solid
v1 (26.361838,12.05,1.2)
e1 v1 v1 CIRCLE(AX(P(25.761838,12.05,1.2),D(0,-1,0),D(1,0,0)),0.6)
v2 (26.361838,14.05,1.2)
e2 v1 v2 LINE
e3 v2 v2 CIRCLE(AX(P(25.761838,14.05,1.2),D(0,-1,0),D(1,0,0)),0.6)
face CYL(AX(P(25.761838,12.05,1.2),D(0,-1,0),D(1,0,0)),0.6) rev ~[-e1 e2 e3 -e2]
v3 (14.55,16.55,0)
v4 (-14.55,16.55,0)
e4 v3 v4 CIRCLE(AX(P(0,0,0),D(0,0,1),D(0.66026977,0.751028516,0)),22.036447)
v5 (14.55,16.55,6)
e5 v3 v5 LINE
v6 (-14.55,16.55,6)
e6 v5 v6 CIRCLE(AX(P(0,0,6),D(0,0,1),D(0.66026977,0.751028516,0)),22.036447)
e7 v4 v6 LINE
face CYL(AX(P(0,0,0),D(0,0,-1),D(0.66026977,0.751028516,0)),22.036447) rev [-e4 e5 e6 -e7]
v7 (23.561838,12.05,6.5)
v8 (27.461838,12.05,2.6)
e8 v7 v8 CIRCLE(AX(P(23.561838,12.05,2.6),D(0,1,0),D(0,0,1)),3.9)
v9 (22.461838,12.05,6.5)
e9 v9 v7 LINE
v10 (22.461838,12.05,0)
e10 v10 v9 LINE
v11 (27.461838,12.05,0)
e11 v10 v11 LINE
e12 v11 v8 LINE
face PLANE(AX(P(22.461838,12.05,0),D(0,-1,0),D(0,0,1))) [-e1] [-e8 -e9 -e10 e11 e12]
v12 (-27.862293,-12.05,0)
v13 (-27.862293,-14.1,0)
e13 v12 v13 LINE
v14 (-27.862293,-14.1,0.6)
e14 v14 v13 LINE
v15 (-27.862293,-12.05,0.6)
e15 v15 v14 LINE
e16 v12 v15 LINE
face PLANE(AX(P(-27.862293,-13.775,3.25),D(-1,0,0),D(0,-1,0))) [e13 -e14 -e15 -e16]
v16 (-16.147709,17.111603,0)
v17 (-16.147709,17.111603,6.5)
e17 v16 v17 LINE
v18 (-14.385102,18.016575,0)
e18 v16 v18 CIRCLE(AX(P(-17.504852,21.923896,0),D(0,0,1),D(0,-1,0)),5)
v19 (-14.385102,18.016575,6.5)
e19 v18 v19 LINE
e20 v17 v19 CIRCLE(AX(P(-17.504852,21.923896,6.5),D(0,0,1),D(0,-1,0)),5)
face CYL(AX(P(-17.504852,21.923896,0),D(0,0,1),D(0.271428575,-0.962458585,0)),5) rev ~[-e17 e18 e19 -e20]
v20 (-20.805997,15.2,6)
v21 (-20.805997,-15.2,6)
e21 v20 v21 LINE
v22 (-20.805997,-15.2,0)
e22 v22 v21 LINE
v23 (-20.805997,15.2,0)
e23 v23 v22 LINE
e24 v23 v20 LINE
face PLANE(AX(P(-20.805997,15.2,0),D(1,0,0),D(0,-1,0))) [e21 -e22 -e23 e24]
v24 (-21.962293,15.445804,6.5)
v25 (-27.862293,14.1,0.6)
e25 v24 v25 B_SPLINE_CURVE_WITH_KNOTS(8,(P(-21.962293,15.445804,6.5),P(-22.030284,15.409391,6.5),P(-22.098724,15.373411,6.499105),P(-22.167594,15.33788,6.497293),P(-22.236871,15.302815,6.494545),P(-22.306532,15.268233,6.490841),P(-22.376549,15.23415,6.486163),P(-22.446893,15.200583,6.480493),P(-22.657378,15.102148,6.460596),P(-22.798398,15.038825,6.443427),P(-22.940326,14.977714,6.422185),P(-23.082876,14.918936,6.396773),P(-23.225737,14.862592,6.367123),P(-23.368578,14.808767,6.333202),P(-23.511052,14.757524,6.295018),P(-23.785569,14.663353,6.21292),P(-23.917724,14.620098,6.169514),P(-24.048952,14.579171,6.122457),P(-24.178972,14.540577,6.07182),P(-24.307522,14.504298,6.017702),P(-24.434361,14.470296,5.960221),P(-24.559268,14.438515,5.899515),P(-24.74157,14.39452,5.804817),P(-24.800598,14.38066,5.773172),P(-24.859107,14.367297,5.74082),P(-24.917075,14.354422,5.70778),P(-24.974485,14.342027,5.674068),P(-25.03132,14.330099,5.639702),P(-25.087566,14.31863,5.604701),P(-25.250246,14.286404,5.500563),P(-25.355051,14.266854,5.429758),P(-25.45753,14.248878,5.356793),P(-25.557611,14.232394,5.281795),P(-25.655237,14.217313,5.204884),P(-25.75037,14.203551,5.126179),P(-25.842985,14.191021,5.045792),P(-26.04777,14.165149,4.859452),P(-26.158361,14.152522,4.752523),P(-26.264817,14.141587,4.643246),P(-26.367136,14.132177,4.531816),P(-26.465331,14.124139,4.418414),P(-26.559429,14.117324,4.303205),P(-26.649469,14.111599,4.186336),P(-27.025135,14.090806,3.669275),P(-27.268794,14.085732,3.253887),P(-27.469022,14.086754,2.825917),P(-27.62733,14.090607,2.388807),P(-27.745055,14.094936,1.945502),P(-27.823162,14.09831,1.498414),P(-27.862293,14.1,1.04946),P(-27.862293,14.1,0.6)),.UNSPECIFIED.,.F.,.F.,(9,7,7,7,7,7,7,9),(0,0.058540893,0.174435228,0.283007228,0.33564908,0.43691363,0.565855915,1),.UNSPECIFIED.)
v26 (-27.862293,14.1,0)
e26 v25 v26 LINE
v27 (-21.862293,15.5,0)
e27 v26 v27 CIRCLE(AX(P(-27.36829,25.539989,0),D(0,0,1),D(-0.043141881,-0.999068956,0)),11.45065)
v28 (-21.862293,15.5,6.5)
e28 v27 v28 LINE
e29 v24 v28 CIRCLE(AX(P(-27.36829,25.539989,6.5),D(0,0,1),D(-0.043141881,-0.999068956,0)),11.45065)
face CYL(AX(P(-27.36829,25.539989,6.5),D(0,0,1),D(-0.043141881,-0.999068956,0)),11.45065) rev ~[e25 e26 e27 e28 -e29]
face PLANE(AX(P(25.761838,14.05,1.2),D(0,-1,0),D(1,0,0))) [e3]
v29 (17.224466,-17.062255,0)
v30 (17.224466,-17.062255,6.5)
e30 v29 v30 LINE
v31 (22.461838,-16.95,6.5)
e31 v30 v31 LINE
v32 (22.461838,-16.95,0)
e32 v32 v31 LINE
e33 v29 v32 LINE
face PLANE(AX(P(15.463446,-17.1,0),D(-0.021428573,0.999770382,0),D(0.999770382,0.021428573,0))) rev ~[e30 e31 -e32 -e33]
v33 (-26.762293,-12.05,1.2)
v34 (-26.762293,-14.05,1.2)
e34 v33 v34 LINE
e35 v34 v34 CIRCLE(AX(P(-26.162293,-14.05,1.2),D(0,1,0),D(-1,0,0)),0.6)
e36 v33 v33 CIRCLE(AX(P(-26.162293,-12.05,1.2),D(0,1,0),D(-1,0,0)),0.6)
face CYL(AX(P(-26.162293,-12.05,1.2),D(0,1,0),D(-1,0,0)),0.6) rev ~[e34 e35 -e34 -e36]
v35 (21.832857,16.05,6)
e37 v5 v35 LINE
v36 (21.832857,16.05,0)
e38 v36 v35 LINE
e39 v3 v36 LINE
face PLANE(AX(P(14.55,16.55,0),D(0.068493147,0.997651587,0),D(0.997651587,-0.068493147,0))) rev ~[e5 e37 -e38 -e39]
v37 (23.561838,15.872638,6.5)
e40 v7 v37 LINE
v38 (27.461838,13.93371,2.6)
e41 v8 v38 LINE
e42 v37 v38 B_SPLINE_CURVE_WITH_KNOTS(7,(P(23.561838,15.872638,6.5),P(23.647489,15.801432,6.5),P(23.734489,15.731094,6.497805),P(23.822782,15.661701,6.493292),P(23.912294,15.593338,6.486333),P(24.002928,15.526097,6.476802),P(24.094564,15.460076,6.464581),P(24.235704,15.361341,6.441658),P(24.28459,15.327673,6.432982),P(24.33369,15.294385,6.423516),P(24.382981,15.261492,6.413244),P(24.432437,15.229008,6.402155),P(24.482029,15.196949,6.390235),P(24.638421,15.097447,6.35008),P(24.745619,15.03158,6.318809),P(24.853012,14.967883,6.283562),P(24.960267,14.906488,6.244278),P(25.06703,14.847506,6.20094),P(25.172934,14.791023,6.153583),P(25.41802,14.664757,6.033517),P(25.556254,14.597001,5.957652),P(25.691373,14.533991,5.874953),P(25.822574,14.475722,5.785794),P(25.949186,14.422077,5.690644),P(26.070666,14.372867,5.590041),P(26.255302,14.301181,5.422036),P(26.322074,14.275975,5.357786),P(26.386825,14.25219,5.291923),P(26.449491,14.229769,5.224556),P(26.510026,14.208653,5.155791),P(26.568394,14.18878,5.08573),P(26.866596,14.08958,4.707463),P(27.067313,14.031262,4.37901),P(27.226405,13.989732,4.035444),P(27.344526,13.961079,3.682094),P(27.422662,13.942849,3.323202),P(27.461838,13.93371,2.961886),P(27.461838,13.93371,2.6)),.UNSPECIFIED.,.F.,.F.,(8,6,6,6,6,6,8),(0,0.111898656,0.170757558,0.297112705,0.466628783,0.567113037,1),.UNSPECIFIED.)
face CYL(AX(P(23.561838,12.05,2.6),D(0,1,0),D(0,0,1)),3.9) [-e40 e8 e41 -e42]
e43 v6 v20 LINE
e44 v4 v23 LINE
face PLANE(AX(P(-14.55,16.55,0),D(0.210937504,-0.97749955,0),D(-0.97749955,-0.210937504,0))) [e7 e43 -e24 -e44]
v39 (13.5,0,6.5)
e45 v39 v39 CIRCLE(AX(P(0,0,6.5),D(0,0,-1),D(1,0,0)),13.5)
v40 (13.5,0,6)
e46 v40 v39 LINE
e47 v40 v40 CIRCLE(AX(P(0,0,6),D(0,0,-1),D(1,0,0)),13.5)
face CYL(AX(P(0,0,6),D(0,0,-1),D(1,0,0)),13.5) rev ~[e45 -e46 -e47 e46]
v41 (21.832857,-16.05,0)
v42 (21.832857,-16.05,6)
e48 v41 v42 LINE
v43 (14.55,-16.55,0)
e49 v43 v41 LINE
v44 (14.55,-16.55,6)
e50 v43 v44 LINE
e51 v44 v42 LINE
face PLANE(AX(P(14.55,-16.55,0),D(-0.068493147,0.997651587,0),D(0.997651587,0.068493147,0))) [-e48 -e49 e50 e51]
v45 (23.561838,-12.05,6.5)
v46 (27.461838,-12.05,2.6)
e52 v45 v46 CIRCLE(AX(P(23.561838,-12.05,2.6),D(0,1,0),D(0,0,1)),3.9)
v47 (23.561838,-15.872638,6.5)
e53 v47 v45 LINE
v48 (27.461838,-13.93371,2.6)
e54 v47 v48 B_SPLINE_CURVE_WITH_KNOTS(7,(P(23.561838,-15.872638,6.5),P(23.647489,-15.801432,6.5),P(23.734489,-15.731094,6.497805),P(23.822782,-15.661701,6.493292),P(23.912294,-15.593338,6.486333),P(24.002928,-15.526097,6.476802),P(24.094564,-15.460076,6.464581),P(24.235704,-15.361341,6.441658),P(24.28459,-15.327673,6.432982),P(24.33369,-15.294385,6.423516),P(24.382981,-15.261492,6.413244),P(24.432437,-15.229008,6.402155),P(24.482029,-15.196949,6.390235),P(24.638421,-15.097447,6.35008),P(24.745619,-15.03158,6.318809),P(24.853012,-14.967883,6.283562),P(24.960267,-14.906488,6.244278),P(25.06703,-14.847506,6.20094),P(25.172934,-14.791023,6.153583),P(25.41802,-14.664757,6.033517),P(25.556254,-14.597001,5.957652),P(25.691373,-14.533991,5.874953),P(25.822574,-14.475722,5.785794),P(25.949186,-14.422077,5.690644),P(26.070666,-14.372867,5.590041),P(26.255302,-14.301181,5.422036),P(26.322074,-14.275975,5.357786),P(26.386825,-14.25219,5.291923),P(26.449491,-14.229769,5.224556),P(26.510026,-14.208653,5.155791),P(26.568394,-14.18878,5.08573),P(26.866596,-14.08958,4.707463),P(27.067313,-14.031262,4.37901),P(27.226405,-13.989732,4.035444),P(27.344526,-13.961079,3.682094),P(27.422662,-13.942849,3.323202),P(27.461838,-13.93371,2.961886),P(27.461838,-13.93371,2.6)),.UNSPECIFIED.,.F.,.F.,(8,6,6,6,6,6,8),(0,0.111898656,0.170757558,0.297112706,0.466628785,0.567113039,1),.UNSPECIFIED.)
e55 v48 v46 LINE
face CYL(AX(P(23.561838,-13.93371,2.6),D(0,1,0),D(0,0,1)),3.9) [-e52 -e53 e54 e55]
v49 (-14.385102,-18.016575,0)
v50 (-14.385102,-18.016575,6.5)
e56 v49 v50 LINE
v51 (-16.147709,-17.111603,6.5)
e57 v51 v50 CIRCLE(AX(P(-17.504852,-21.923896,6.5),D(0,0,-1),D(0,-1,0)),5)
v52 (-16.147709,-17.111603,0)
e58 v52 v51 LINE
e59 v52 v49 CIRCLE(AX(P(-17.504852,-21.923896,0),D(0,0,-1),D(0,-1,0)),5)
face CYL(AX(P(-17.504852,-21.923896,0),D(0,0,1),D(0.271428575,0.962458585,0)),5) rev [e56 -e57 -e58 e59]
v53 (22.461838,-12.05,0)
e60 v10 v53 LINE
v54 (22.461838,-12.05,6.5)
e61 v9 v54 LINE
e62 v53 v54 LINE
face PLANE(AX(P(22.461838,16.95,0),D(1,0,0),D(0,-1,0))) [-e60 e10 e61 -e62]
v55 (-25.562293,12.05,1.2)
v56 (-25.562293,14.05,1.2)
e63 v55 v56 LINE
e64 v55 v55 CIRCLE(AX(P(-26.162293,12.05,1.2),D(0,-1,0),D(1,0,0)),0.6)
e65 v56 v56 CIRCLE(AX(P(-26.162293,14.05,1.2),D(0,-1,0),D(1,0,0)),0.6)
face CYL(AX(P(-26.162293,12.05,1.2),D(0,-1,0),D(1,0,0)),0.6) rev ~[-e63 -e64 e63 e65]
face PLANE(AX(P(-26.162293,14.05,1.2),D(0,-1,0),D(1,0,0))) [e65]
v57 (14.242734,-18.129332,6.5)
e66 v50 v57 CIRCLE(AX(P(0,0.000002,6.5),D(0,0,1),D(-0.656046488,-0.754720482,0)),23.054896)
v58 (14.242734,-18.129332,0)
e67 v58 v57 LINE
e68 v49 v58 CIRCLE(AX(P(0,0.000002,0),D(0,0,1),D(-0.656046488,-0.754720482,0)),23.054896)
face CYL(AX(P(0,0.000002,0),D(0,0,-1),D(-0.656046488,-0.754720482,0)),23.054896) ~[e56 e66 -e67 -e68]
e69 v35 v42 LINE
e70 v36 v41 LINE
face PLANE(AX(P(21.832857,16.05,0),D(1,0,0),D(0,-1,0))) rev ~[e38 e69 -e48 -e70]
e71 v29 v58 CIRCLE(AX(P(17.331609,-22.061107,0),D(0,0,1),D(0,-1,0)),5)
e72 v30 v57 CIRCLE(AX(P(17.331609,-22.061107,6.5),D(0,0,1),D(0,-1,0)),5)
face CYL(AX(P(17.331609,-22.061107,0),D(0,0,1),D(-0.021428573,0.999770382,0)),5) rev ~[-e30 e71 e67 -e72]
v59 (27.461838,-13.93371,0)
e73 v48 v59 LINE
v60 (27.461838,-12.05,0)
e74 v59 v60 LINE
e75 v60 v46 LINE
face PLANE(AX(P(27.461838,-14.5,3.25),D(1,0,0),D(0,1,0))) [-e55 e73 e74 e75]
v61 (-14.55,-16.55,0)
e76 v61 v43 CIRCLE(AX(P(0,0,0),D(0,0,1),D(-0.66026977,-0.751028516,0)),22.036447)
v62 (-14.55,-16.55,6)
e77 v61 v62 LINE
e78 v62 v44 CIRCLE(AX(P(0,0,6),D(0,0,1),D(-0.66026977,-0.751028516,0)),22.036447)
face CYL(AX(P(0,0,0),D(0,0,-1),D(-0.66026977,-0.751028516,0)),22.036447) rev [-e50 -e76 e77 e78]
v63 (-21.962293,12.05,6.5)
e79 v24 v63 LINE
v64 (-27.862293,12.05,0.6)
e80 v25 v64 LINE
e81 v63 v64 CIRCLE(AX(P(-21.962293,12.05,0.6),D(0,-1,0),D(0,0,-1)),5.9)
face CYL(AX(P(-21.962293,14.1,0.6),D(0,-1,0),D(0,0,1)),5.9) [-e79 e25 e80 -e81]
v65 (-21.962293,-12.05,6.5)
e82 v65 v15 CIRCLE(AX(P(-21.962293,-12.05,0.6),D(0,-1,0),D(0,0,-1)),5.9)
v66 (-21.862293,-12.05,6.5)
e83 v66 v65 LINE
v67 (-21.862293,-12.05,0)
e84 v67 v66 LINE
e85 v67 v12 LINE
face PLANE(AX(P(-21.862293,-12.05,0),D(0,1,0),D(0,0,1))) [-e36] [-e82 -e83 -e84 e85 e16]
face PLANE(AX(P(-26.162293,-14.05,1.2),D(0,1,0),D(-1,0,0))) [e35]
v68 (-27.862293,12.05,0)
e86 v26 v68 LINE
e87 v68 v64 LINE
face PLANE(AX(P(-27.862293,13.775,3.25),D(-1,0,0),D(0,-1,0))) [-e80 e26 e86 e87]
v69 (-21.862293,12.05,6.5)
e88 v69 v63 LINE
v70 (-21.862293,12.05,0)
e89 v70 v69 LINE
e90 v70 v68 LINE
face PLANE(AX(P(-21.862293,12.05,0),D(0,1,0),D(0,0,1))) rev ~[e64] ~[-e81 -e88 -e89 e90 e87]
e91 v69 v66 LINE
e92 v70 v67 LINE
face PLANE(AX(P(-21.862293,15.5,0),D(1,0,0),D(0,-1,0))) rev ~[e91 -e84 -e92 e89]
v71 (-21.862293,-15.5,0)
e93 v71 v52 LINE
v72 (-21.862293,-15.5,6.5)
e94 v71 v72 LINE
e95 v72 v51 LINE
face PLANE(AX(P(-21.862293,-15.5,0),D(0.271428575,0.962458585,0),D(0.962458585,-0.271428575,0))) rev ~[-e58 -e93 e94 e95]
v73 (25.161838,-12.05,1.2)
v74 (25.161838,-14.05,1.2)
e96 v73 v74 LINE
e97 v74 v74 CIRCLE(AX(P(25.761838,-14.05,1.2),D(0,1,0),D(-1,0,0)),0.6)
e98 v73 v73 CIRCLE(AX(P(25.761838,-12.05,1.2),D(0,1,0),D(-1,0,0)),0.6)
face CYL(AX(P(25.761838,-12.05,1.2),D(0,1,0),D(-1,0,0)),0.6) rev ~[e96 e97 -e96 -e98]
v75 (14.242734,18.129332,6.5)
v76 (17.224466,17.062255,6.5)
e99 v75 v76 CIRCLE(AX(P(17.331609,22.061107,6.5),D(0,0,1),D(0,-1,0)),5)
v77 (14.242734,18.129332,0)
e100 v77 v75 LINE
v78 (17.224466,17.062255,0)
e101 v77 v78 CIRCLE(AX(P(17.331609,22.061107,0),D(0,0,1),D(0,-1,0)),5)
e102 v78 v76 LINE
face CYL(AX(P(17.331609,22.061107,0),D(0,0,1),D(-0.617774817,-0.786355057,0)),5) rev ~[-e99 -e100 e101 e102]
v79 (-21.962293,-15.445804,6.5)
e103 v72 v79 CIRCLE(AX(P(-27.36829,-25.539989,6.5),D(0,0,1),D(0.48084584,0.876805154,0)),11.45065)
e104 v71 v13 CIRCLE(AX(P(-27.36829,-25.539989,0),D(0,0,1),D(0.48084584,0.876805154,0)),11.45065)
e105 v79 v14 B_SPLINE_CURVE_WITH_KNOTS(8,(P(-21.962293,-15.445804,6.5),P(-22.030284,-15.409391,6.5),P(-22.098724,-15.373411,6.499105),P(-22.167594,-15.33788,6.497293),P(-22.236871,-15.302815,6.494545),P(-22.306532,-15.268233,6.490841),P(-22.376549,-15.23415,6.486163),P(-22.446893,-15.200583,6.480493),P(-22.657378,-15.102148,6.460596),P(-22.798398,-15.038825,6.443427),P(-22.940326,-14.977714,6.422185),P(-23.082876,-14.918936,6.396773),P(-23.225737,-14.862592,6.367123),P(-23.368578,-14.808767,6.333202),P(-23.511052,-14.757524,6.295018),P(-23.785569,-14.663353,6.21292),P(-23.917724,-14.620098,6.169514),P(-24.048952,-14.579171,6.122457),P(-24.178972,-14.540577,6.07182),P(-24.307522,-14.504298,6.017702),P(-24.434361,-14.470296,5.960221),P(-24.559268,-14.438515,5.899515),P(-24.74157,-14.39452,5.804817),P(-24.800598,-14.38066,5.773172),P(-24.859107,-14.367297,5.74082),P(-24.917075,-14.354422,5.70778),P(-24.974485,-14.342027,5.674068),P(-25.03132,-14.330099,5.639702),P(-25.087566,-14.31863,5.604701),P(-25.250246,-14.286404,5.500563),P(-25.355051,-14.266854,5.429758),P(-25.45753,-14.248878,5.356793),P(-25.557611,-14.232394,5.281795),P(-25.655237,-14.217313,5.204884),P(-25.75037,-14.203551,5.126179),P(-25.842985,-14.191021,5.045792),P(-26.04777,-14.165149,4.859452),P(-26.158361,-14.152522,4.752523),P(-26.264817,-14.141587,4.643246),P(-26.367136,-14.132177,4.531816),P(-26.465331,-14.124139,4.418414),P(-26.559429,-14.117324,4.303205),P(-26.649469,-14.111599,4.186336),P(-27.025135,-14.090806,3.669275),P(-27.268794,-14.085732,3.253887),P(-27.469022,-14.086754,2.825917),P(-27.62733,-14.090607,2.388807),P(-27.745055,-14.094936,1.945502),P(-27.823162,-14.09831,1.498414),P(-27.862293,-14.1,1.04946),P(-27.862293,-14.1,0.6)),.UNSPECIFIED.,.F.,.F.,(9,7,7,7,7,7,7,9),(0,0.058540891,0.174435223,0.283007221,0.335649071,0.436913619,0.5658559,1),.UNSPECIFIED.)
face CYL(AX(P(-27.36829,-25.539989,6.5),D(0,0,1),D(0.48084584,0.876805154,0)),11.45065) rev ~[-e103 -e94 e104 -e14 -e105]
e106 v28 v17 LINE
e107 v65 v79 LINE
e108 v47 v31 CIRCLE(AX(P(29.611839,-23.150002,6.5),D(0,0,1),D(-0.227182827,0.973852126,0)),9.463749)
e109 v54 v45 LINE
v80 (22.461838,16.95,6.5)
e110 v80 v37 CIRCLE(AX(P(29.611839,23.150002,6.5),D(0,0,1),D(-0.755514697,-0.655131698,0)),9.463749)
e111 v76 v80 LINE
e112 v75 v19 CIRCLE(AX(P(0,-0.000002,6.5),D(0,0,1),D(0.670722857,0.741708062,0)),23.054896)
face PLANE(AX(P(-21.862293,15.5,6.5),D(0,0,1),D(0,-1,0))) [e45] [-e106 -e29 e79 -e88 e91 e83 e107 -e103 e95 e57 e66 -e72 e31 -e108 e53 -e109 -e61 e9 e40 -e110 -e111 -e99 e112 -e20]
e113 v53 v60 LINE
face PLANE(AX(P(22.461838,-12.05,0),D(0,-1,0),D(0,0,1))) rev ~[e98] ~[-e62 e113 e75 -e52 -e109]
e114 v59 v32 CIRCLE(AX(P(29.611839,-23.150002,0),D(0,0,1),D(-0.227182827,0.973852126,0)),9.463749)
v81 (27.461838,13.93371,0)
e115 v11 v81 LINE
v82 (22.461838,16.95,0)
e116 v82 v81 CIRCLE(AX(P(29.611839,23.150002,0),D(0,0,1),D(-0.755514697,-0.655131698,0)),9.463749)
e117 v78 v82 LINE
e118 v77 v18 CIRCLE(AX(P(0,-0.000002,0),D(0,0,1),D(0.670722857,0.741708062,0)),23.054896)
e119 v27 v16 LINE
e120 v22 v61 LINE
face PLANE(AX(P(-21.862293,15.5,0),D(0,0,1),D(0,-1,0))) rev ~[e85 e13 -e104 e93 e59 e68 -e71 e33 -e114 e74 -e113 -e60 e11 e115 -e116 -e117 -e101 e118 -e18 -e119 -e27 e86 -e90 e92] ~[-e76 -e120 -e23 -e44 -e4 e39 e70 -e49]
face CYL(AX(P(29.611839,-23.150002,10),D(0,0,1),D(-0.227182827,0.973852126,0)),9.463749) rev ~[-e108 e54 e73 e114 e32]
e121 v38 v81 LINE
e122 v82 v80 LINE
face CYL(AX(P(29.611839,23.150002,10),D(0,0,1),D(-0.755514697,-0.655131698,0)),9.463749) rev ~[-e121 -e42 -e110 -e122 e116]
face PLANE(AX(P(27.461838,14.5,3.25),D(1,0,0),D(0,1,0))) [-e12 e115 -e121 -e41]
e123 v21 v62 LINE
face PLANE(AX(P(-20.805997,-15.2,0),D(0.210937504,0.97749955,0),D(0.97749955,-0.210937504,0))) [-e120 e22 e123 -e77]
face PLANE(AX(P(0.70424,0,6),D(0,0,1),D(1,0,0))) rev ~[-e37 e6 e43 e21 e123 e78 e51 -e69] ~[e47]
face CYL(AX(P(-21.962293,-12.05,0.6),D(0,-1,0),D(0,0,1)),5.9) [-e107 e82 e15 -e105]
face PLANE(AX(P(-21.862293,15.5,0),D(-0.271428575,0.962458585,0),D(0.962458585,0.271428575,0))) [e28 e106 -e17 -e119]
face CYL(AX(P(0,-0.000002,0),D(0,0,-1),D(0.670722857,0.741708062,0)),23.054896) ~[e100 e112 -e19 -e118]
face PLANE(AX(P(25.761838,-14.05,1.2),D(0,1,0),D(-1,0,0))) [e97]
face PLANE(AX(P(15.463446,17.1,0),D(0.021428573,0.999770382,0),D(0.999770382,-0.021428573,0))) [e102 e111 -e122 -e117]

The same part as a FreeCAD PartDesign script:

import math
import FreeCAD as App
import Part
import Sketcher
from FreeCAD import Vector
Q = App.Units.Quantity


def edges_at(feature, points):
    """Names of the edges that pass closest to the given points."""
    edges = feature.Shape.Edges
    near = lambda p: min(range(len(edges)), key=lambda i: edges[i].distToShape(Part.Vertex(*p))[0])
    return sorted({f"Edge{near(p) + 1}" for p in points})

doc = App.newDocument("Part")
body = doc.addObject("PartDesign::Body", "Body")

sketch1 = body.newObject("Sketcher::SketchObject", "Sketch")
sketch1.AttachmentSupport = (doc.getObject("XY_Plane"), [""])
sketch1.MapMode = "FlatFace"
sketch1.addGeometry(Part.LineSegment(Vector(-21.862293, 15.5, 0), Vector(-21.862293, -15.5, 0)), False)
sketch1.addGeometry(Part.LineSegment(Vector(-21.862293, -15.5, 0), Vector(-15.125083, -17.4, 0)), False)
sketch1.addGeometry(Part.ArcOfCircle(Part.Circle(Vector(0, 0.000002, 0), Vector(0, 0, 1), 23.054896), math.radians(-130.999048), math.radians(-47.87712)), False)
sketch1.addGeometry(Part.LineSegment(Vector(15.463446, -17.1, 0), Vector(22.461838, -16.95, 0)), False)
sketch1.addGeometry(Part.LineSegment(Vector(22.461838, -16.95, 0), Vector(22.461838, 16.95, 0)), False)
sketch1.addGeometry(Part.LineSegment(Vector(22.461838, 16.95, 0), Vector(15.463446, 17.1, 0)), False)
sketch1.addGeometry(Part.ArcOfCircle(Part.Circle(Vector(0, -0.000002, 0), Vector(0, 0, 1), 23.054896), math.radians(47.87712), math.radians(130.999048)), False)
sketch1.addGeometry(Part.LineSegment(Vector(-15.125083, 17.4, 0), Vector(-21.862293, 15.5, 0)), False)
sketch1.addConstraint(Sketcher.Constraint("Coincident", 0, 2, 1, 1))
sketch1.addConstraint(Sketcher.Constraint("Coincident", 1, 2, 2, 1))
sketch1.addConstraint(Sketcher.Constraint("Coincident", 2, 2, 3, 1))
sketch1.addConstraint(Sketcher.Constraint("Coincident", 3, 2, 4, 1))
sketch1.addConstraint(Sketcher.Constraint("Coincident", 4, 2, 5, 1))
sketch1.addConstraint(Sketcher.Constraint("Coincident", 5, 2, 6, 1))
sketch1.addConstraint(Sketcher.Constraint("Coincident", 6, 2, 7, 1))
sketch1.addConstraint(Sketcher.Constraint("Coincident", 7, 2, 0, 1))
sketch1.addConstraint(Sketcher.Constraint("Vertical", 0))
sketch1.addConstraint(Sketcher.Constraint("Vertical", 4))
sketch1.addConstraint(Sketcher.Constraint("Coincident", 2, 3, -1, 1))
sketch1.addConstraint(Sketcher.Constraint("Coincident", 6, 3, -1, 1))
sketch1.addConstraint(Sketcher.Constraint("Equal", 2, 6))
sketch1.addConstraint(Sketcher.Constraint("Vertical", 2, 2, 5, 2))
sketch1.addConstraint(Sketcher.Constraint("Vertical", 1, 2, 6, 2))
sketch1.addConstraint(Sketcher.Constraint("Equal", 1, 3))
sketch1.addConstraint(Sketcher.Constraint("Equal", 3, 5))
sketch1.addConstraint(Sketcher.Constraint("Equal", 5, 7))
sketch1.addConstraint(Sketcher.Constraint("DistanceY", 0, 2, 0, 1, Q("31 mm")))
sketch1.addConstraint(Sketcher.Constraint("Distance", 1, Q("7 mm")))
sketch1.addConstraint(Sketcher.Constraint("DistanceY", 4, 1, 4, 2, Q("33.9 mm")))
sketch1.addConstraint(Sketcher.Constraint("DistanceY", 1, 2, -1, 1, Q("17.4 mm")))
sketch1.addConstraint(Sketcher.Constraint("DistanceY", 2, 2, -1, 1, Q("17.1 mm")))
sketch1.addConstraint(Sketcher.Constraint("Radius", 2, Q("23.054896 mm")))
pad1 = body.newObject("PartDesign::Pad", "Pad")
pad1.Profile = sketch1
pad1.Length = 6.5

sketch2 = body.newObject("Sketcher::SketchObject", "Sketch001")
sketch2.AttachmentSupport = (doc.getObject("XY_Plane"), [""])
sketch2.MapMode = "FlatFace"
sketch2.addGeometry(Part.LineSegment(Vector(-14.55, 16.55, 0), Vector(-20.805997, 15.2, 0)), False)
sketch2.addGeometry(Part.LineSegment(Vector(-20.805997, 15.2, 0), Vector(-20.805997, -15.2, 0)), False)
sketch2.addGeometry(Part.LineSegment(Vector(-20.805997, -15.2, 0), Vector(-14.55, -16.55, 0)), False)
sketch2.addGeometry(Part.ArcOfCircle(Part.Circle(Vector(0, 0, 0), Vector(0, 0, 1), 22.036447), math.radians(-131.32045), math.radians(-48.67955)), False)
sketch2.addGeometry(Part.LineSegment(Vector(14.55, -16.55, 0), Vector(21.832857, -16.05, 0)), False)
sketch2.addGeometry(Part.LineSegment(Vector(21.832857, -16.05, 0), Vector(21.832857, 16.05, 0)), False)
sketch2.addGeometry(Part.LineSegment(Vector(21.832857, 16.05, 0), Vector(14.55, 16.55, 0)), False)
sketch2.addGeometry(Part.ArcOfCircle(Part.Circle(Vector(0, 0, 0), Vector(0, 0, 1), 22.036447), math.radians(48.67955), math.radians(131.32045)), False)
sketch2.addConstraint(Sketcher.Constraint("Coincident", 0, 2, 1, 1))
sketch2.addConstraint(Sketcher.Constraint("Coincident", 1, 2, 2, 1))
sketch2.addConstraint(Sketcher.Constraint("Coincident", 2, 2, 3, 1))
sketch2.addConstraint(Sketcher.Constraint("Coincident", 3, 2, 4, 1))
sketch2.addConstraint(Sketcher.Constraint("Coincident", 4, 2, 5, 1))
sketch2.addConstraint(Sketcher.Constraint("Coincident", 5, 2, 6, 1))
sketch2.addConstraint(Sketcher.Constraint("Coincident", 6, 2, 7, 1))
sketch2.addConstraint(Sketcher.Constraint("Coincident", 7, 2, 0, 1))
sketch2.addConstraint(Sketcher.Constraint("Vertical", 1))
sketch2.addConstraint(Sketcher.Constraint("Vertical", 5))
sketch2.addConstraint(Sketcher.Constraint("Coincident", 3, 3, -1, 1))
sketch2.addConstraint(Sketcher.Constraint("Coincident", 7, 3, -1, 1))
sketch2.addConstraint(Sketcher.Constraint("Equal", 3, 7))
sketch2.addConstraint(Sketcher.Constraint("Horizontal", 2, 2, 3, 2))
sketch2.addConstraint(Sketcher.Constraint("Horizontal", 6, 2, 7, 2))
sketch2.addConstraint(Sketcher.Constraint("Vertical", 3, 2, 6, 2))
sketch2.addConstraint(Sketcher.Constraint("Equal", 0, 2))
sketch2.addConstraint(Sketcher.Constraint("Equal", 4, 6))
sketch2.addConstraint(Sketcher.Constraint("DistanceY", 1, 2, 1, 1, Q("30.4 mm")))
sketch2.addConstraint(Sketcher.Constraint("DistanceY", 5, 1, 5, 2, Q("32.1 mm")))
sketch2.addConstraint(Sketcher.Constraint("Distance", 0, Q("6.4 mm")))
sketch2.addConstraint(Sketcher.Constraint("Distance", 4, Q("7.3 mm")))
sketch2.addConstraint(Sketcher.Constraint("DistanceX", 2, 2, 3, 2, Q("29.1 mm")))
sketch2.addConstraint(Sketcher.Constraint("DistanceY", 3, 2, 4, 2, Q("0.5 mm")))
pocket1 = body.newObject("PartDesign::Pocket", "Pocket")
pocket1.Profile = sketch2
pocket1.Length = 6
pocket1.Reversed = True

sketch3 = body.newObject("Sketcher::SketchObject", "Sketch002")
sketch3.AttachmentSupport = (doc.getObject("XY_Plane"), [""])
sketch3.MapMode = "FlatFace"
sketch3.AttachmentOffset = App.Placement(Vector(0, 0, 6), App.Rotation())
sketch3.addGeometry(Part.Circle(Vector(0, 0, 0), Vector(0, 0, 1), 13.5), False)
sketch3.addConstraint(Sketcher.Constraint("Coincident", 0, 3, -1, 1))
sketch3.addConstraint(Sketcher.Constraint("Diameter", 0, Q("27 mm")))
pocket2 = body.newObject("PartDesign::Pocket", "Pocket001")
pocket2.Profile = sketch3
pocket2.Length = 1
pocket2.Reversed = True

sketch4 = body.newObject("Sketcher::SketchObject", "Sketch003")
sketch4.AttachmentSupport = (doc.getObject("YZ_Plane"), [""])
sketch4.MapMode = "FlatFace"
sketch4.AttachmentOffset = App.Placement(Vector(0, 0, 22.461838), App.Rotation())
sketch4.addGeometry(Part.LineSegment(Vector(-16.95, 6.5, 0), Vector(-16.95, 0, 0)), False)
sketch4.addGeometry(Part.LineSegment(Vector(-16.95, 0, 0), Vector(-12.05, 0, 0)), False)
sketch4.addGeometry(Part.LineSegment(Vector(-12.05, 0, 0), Vector(-12.05, 6.5, 0)), False)
sketch4.addGeometry(Part.LineSegment(Vector(-12.05, 6.5, 0), Vector(-16.95, 6.5, 0)), False)
sketch4.addGeometry(Part.LineSegment(Vector(12.05, 6.5, 0), Vector(12.05, 0, 0)), False)
sketch4.addGeometry(Part.LineSegment(Vector(12.05, 0, 0), Vector(16.95, 0, 0)), False)
sketch4.addGeometry(Part.LineSegment(Vector(16.95, 0, 0), Vector(16.95, 6.5, 0)), False)
sketch4.addGeometry(Part.LineSegment(Vector(16.95, 6.5, 0), Vector(12.05, 6.5, 0)), False)
sketch4.addConstraint(Sketcher.Constraint("Coincident", 0, 2, 1, 1))
sketch4.addConstraint(Sketcher.Constraint("Coincident", 1, 2, 2, 1))
sketch4.addConstraint(Sketcher.Constraint("Coincident", 2, 2, 3, 1))
sketch4.addConstraint(Sketcher.Constraint("Coincident", 3, 2, 0, 1))
sketch4.addConstraint(Sketcher.Constraint("Coincident", 4, 2, 5, 1))
sketch4.addConstraint(Sketcher.Constraint("Coincident", 5, 2, 6, 1))
sketch4.addConstraint(Sketcher.Constraint("Coincident", 6, 2, 7, 1))
sketch4.addConstraint(Sketcher.Constraint("Coincident", 7, 2, 4, 1))
sketch4.addConstraint(Sketcher.Constraint("Vertical", 0))
sketch4.addConstraint(Sketcher.Constraint("Horizontal", 1))
sketch4.addConstraint(Sketcher.Constraint("Vertical", 2))
sketch4.addConstraint(Sketcher.Constraint("Horizontal", 3))
sketch4.addConstraint(Sketcher.Constraint("Vertical", 4))
sketch4.addConstraint(Sketcher.Constraint("Horizontal", 5))
sketch4.addConstraint(Sketcher.Constraint("Vertical", 6))
sketch4.addConstraint(Sketcher.Constraint("Horizontal", 7))
sketch4.addConstraint(Sketcher.Constraint("Symmetric", 1, 2, 4, 2, -1, 1))
sketch4.addConstraint(Sketcher.Constraint("Symmetric", 0, 2, 5, 2, -2))
sketch4.addConstraint(Sketcher.Constraint("Horizontal", 3, 2, 6, 2))
sketch4.addConstraint(Sketcher.Constraint("DistanceX", 1, 1, 1, 2, Q("4.9 mm")))
sketch4.addConstraint(Sketcher.Constraint("DistanceY", 0, 2, 0, 1, Q("6.5 mm")))
sketch4.addConstraint(Sketcher.Constraint("DistanceX", 0, 2, 4, 2, Q("29 mm")))
pad2 = body.newObject("PartDesign::Pad", "Pad001")
pad2.Profile = sketch4
pad2.Length = 5

sketch5 = body.newObject("Sketcher::SketchObject", "Sketch004")
sketch5.AttachmentSupport = (doc.getObject("XY_Plane"), [""])
sketch5.MapMode = "FlatFace"
sketch5.AttachmentOffset = App.Placement(Vector(0, 0, 10), App.Rotation())
sketch5.addGeometry(Part.ArcOfCircle(Part.Circle(Vector(29.611839, 23.150002, 0), Vector(0, 0, 1), 9.463749), math.radians(-139.070363), math.radians(-103.131269)), False)
sketch5.addGeometry(Part.LineSegment(Vector(27.461838, 13.93371, 0), Vector(27.461838, 16.95, 0)), False)
sketch5.addGeometry(Part.LineSegment(Vector(27.461838, 16.95, 0), Vector(22.461838, 16.95, 0)), False)
sketch5.addGeometry(Part.ArcOfCircle(Part.Circle(Vector(29.611839, -23.150002, 0), Vector(0, 0, 1), 9.463749), math.radians(103.131269), math.radians(139.070363)), False)
sketch5.addGeometry(Part.LineSegment(Vector(22.461838, -16.95, 0), Vector(27.461838, -16.95, 0)), False)
sketch5.addGeometry(Part.LineSegment(Vector(27.461838, -16.95, 0), Vector(27.461838, -13.93371, 0)), False)
sketch5.addConstraint(Sketcher.Constraint("Coincident", 0, 2, 1, 1))
sketch5.addConstraint(Sketcher.Constraint("Coincident", 1, 2, 2, 1))
sketch5.addConstraint(Sketcher.Constraint("Coincident", 2, 2, 0, 1))
sketch5.addConstraint(Sketcher.Constraint("Coincident", 3, 2, 4, 1))
sketch5.addConstraint(Sketcher.Constraint("Coincident", 4, 2, 5, 1))
sketch5.addConstraint(Sketcher.Constraint("Coincident", 5, 2, 3, 1))
sketch5.addConstraint(Sketcher.Constraint("Vertical", 1))
sketch5.addConstraint(Sketcher.Constraint("Horizontal", 2))
sketch5.addConstraint(Sketcher.Constraint("Horizontal", 4))
sketch5.addConstraint(Sketcher.Constraint("Vertical", 5))
sketch5.addConstraint(Sketcher.Constraint("Equal", 0, 3))
sketch5.addConstraint(Sketcher.Constraint("Symmetric", 0, 3, 3, 3, -1))
sketch5.addConstraint(Sketcher.Constraint("Symmetric", 1, 2, 4, 2, -1))
sketch5.addConstraint(Sketcher.Constraint("DistanceX", 2, 2, 2, 1, Q("5 mm")))
sketch5.addConstraint(Sketcher.Constraint("DistanceY", 1, 2, 0, 3, Q("6.200002 mm")))
sketch5.addConstraint(Sketcher.Constraint("DistanceY", 3, 3, 1, 2, Q("40.100002 mm")))
sketch5.addConstraint(Sketcher.Constraint("Radius", 0, Q("9.463749 mm")))
sketch5.addConstraint(Sketcher.Constraint("DistanceX", -1, 1, 0, 3, Q("29.611839 mm")))
pocket3 = body.newObject("PartDesign::Pocket", "Pocket002")
pocket3.Profile = sketch5
pocket3.Length = 10

sketch6 = body.newObject("Sketcher::SketchObject", "Sketch005")
sketch6.AttachmentSupport = (doc.getObject("XZ_Plane"), [""])
sketch6.MapMode = "FlatFace"
sketch6.AttachmentOffset = App.Placement(Vector(0, 0, 12.05), App.Rotation())
sketch6.addGeometry(Part.Circle(Vector(25.761838, 1.2, 0), Vector(0, 0, 1), 0.6), False)
sketch6.addConstraint(Sketcher.Constraint("Diameter", 0, Q("1.2 mm")))
sketch6.addConstraint(Sketcher.Constraint("DistanceY", -1, 1, 0, 3, Q("1.2 mm")))
sketch6.addConstraint(Sketcher.Constraint("DistanceX", -1, 1, 0, 3, Q("25.761838 mm")))
pocket4 = body.newObject("PartDesign::Pocket", "Pocket003")
pocket4.Profile = sketch6
pocket4.Length = 2
pocket4.Reversed = True

sketch7 = body.newObject("Sketcher::SketchObject", "Sketch006")
sketch7.AttachmentSupport = (doc.getObject("XZ_Plane"), [""])
sketch7.MapMode = "FlatFace"
sketch7.AttachmentOffset = App.Placement(Vector(0, 0, -12.05), App.Rotation())
sketch7.addGeometry(Part.Circle(Vector(25.761838, 1.2, 0), Vector(0, 0, 1), 0.6), False)
sketch7.addConstraint(Sketcher.Constraint("Diameter", 0, Q("1.2 mm")))
sketch7.addConstraint(Sketcher.Constraint("DistanceY", -1, 1, 0, 3, Q("1.2 mm")))
sketch7.addConstraint(Sketcher.Constraint("DistanceX", -1, 1, 0, 3, Q("25.761838 mm")))
pocket5 = body.newObject("PartDesign::Pocket", "Pocket004")
pocket5.Profile = sketch7
pocket5.Length = 2
doc.recompute()

fillet = body.newObject("PartDesign::Fillet", "Fillet")
fillet.Base = (pocket5, edges_at(pocket5, [(27.462, -12.992, 6.5)]))
fillet.Radius = 3.9
doc.recompute()

fillet2 = body.newObject("PartDesign::Fillet", "Fillet001")
fillet2.Base = (fillet, edges_at(fillet, [(27.462, 12.992, 6.5)]))
fillet2.Radius = 3.9
doc.recompute()

fillet3 = body.newObject("PartDesign::Fillet", "Fillet002")
fillet3.Base = (fillet2, edges_at(fillet2, [(15.463, -17.1, 3.25)]))
fillet3.Radius = 5
doc.recompute()

fillet4 = body.newObject("PartDesign::Fillet", "Fillet003")
fillet4.Base = (fillet3, edges_at(fillet3, [(15.463, 17.1, 3.25)]))
fillet4.Radius = 5
doc.recompute()

fillet5 = body.newObject("PartDesign::Fillet", "Fillet004")
fillet5.Base = (fillet4, edges_at(fillet4, [(-15.125, -17.4, 3.25)]))
fillet5.Radius = 5
doc.recompute()

fillet6 = body.newObject("PartDesign::Fillet", "Fillet005")
fillet6.Base = (fillet5, edges_at(fillet5, [(-15.125, 17.4, 3.25)]))
fillet6.Radius = 5

sketch8 = body.newObject("Sketcher::SketchObject", "Sketch007")
sketch8.AttachmentSupport = (doc.getObject("YZ_Plane"), [""])
sketch8.MapMode = "FlatFace"
sketch8.AttachmentOffset = App.Placement(Vector(0, 0, -21.862293), App.Rotation())
sketch8.addGeometry(Part.LineSegment(Vector(15.5, 6.5, 0), Vector(15.5, 0, 0)), False)
sketch8.addGeometry(Part.LineSegment(Vector(15.5, 0, 0), Vector(12.05, 0, 0)), False)
sketch8.addGeometry(Part.LineSegment(Vector(12.05, 0, 0), Vector(12.05, 6.5, 0)), False)
sketch8.addGeometry(Part.LineSegment(Vector(12.05, 6.5, 0), Vector(15.5, 6.5, 0)), False)
sketch8.addGeometry(Part.LineSegment(Vector(-12.05, 6.5, 0), Vector(-12.05, 0, 0)), False)
sketch8.addGeometry(Part.LineSegment(Vector(-12.05, 0, 0), Vector(-15.5, 0, 0)), False)
sketch8.addGeometry(Part.LineSegment(Vector(-15.5, 0, 0), Vector(-15.5, 6.5, 0)), False)
sketch8.addGeometry(Part.LineSegment(Vector(-15.5, 6.5, 0), Vector(-12.05, 6.5, 0)), False)
sketch8.addConstraint(Sketcher.Constraint("Coincident", 0, 2, 1, 1))
sketch8.addConstraint(Sketcher.Constraint("Coincident", 1, 2, 2, 1))
sketch8.addConstraint(Sketcher.Constraint("Coincident", 2, 2, 3, 1))
sketch8.addConstraint(Sketcher.Constraint("Coincident", 3, 2, 0, 1))
sketch8.addConstraint(Sketcher.Constraint("Coincident", 4, 2, 5, 1))
sketch8.addConstraint(Sketcher.Constraint("Coincident", 5, 2, 6, 1))
sketch8.addConstraint(Sketcher.Constraint("Coincident", 6, 2, 7, 1))
sketch8.addConstraint(Sketcher.Constraint("Coincident", 7, 2, 4, 1))
sketch8.addConstraint(Sketcher.Constraint("Vertical", 0))
sketch8.addConstraint(Sketcher.Constraint("Horizontal", 1))
sketch8.addConstraint(Sketcher.Constraint("Vertical", 2))
sketch8.addConstraint(Sketcher.Constraint("Horizontal", 3))
sketch8.addConstraint(Sketcher.Constraint("Vertical", 4))
sketch8.addConstraint(Sketcher.Constraint("Horizontal", 5))
sketch8.addConstraint(Sketcher.Constraint("Vertical", 6))
sketch8.addConstraint(Sketcher.Constraint("Horizontal", 7))
sketch8.addConstraint(Sketcher.Constraint("Symmetric", 1, 2, 4, 2, -1, 1))
sketch8.addConstraint(Sketcher.Constraint("Symmetric", 0, 2, 5, 2, -2))
sketch8.addConstraint(Sketcher.Constraint("Horizontal", 3, 2, 6, 2))
sketch8.addConstraint(Sketcher.Constraint("DistanceY", 0, 2, 0, 1, Q("6.5 mm")))
sketch8.addConstraint(Sketcher.Constraint("DistanceX", 5, 2, 0, 2, Q("31 mm")))
sketch8.addConstraint(Sketcher.Constraint("DistanceX", 1, 2, 1, 1, Q("3.45 mm")))
pad3 = body.newObject("PartDesign::Pad", "Pad002")
pad3.Profile = sketch8
pad3.Length = 6
pad3.Reversed = True

sketch9 = body.newObject("Sketcher::SketchObject", "Sketch008")
sketch9.AttachmentSupport = (doc.getObject("XY_Plane"), [""])
sketch9.MapMode = "FlatFace"
sketch9.AttachmentOffset = App.Placement(Vector(0, 0, 6.5), App.Rotation())
sketch9.addGeometry(Part.ArcOfCircle(Part.Circle(Vector(-27.36829, 25.539989, 0), Vector(0, 0, 1), 11.45065), math.radians(-92.472615), math.radians(-61.25934)), False)
sketch9.addGeometry(Part.LineSegment(Vector(-21.862293, 15.5, 0), Vector(-27.862293, 15.5, 0)), False)
sketch9.addGeometry(Part.LineSegment(Vector(-27.862293, 15.5, 0), Vector(-27.862293, 14.1, 0)), False)
sketch9.addGeometry(Part.ArcOfCircle(Part.Circle(Vector(-27.36829, -25.539989, 0), Vector(0, 0, 1), 11.45065), math.radians(61.25934), math.radians(92.472615)), False)
sketch9.addGeometry(Part.LineSegment(Vector(-27.862293, -14.1, 0), Vector(-27.862293, -15.5, 0)), False)
sketch9.addGeometry(Part.LineSegment(Vector(-27.862293, -15.5, 0), Vector(-21.862293, -15.5, 0)), False)
sketch9.addConstraint(Sketcher.Constraint("Coincident", 0, 2, 1, 1))
sketch9.addConstraint(Sketcher.Constraint("Coincident", 1, 2, 2, 1))
sketch9.addConstraint(Sketcher.Constraint("Coincident", 2, 2, 0, 1))
sketch9.addConstraint(Sketcher.Constraint("Coincident", 3, 2, 4, 1))
sketch9.addConstraint(Sketcher.Constraint("Coincident", 4, 2, 5, 1))
sketch9.addConstraint(Sketcher.Constraint("Coincident", 5, 2, 3, 1))
sketch9.addConstraint(Sketcher.Constraint("Horizontal", 1))
sketch9.addConstraint(Sketcher.Constraint("Vertical", 2))
sketch9.addConstraint(Sketcher.Constraint("Vertical", 4))
sketch9.addConstraint(Sketcher.Constraint("Horizontal", 5))
sketch9.addConstraint(Sketcher.Constraint("Equal", 0, 3))
sketch9.addConstraint(Sketcher.Constraint("Symmetric", 0, 3, 3, 3, -1))
sketch9.addConstraint(Sketcher.Constraint("Symmetric", 1, 2, 4, 2, -1))
sketch9.addConstraint(Sketcher.Constraint("DistanceX", 1, 2, 1, 1, Q("6 mm")))
sketch9.addConstraint(Sketcher.Constraint("DistanceY", 2, 2, 2, 1, Q("1.4 mm")))
sketch9.addConstraint(Sketcher.Constraint("DistanceY", 4, 2, 1, 2, Q("31 mm")))
sketch9.addConstraint(Sketcher.Constraint("Radius", 0, Q("11.45065 mm")))
sketch9.addConstraint(Sketcher.Constraint("DistanceX", 0, 3, -1, 1, Q("27.36829 mm")))
pocket6 = body.newObject("PartDesign::Pocket", "Pocket005")
pocket6.Profile = sketch9
pocket6.Length = 10

sketch10 = body.newObject("Sketcher::SketchObject", "Sketch009")
sketch10.AttachmentSupport = (doc.getObject("XZ_Plane"), [""])
sketch10.MapMode = "FlatFace"
sketch10.AttachmentOffset = App.Placement(Vector(0, 0, 12.05), App.Rotation())
sketch10.addGeometry(Part.Circle(Vector(-26.162293, 1.2, 0), Vector(0, 0, 1), 0.6), False)
sketch10.addConstraint(Sketcher.Constraint("Diameter", 0, Q("1.2 mm")))
sketch10.addConstraint(Sketcher.Constraint("DistanceY", -1, 1, 0, 3, Q("1.2 mm")))
sketch10.addConstraint(Sketcher.Constraint("DistanceX", 0, 3, -1, 1, Q("26.162293 mm")))
pocket7 = body.newObject("PartDesign::Pocket", "Pocket006")
pocket7.Profile = sketch10
pocket7.Length = 2
pocket7.Reversed = True

sketch11 = body.newObject("Sketcher::SketchObject", "Sketch010")
sketch11.AttachmentSupport = (doc.getObject("XZ_Plane"), [""])
sketch11.MapMode = "FlatFace"
sketch11.AttachmentOffset = App.Placement(Vector(0, 0, -12.05), App.Rotation())
sketch11.addGeometry(Part.Circle(Vector(-26.162293, 1.2, 0), Vector(0, 0, 1), 0.6), False)
sketch11.addConstraint(Sketcher.Constraint("Diameter", 0, Q("1.2 mm")))
sketch11.addConstraint(Sketcher.Constraint("DistanceY", -1, 1, 0, 3, Q("1.2 mm")))
sketch11.addConstraint(Sketcher.Constraint("DistanceX", 0, 3, -1, 1, Q("26.162293 mm")))
pocket8 = body.newObject("PartDesign::Pocket", "Pocket007")
pocket8.Profile = sketch11
pocket8.Length = 2
doc.recompute()

fillet7 = body.newObject("PartDesign::Fillet", "Fillet006")
fillet7.Base = (pocket8, edges_at(pocket8, [(-27.862, 13.075, 6.5)]))
fillet7.Radius = 5.9
doc.recompute()

fillet8 = body.newObject("PartDesign::Fillet", "Fillet007")
fillet8.Base = (fillet7, edges_at(fillet7, [(-27.862, -13.075, 6.5)]))
fillet8.Radius = 5.9

doc.recompute()
